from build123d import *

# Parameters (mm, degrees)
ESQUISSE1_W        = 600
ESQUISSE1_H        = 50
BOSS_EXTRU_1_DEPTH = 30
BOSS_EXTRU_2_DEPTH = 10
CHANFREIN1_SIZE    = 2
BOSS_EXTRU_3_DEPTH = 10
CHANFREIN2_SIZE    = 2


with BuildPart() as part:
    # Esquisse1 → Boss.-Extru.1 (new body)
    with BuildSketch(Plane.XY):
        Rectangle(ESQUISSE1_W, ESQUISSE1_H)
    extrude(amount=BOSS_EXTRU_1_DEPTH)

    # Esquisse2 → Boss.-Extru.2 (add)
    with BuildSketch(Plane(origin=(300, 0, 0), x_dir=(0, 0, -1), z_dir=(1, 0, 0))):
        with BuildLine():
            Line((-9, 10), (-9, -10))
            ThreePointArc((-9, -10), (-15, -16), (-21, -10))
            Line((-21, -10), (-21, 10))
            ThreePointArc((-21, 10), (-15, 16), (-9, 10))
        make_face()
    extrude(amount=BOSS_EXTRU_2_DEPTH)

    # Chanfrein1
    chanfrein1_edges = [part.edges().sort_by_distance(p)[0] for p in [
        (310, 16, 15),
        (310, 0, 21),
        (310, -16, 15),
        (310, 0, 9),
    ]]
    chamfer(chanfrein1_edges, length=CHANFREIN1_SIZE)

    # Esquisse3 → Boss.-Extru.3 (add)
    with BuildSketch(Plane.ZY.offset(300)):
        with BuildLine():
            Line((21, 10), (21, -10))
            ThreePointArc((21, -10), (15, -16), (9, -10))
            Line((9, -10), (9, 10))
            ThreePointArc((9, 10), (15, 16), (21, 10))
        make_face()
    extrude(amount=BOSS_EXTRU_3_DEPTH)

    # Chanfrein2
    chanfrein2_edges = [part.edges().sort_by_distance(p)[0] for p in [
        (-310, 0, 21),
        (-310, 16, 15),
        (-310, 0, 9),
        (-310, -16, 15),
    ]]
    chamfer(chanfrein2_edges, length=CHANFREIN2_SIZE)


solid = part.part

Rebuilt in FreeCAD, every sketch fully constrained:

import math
import FreeCAD as App
import Part
import Sketcher

V = App.Vector


def edges_at(feature, points):
    """Names of the edges that pass closest to the given points."""
    edges = feature.Shape.Edges
    near = lambda p: min(range(len(edges)), key=lambda i: edges[i].distToShape(Part.Vertex(*p))[0])
    return sorted({f"Edge{near(p) + 1}" for p in points})

doc = App.newDocument("Part")
body = doc.addObject("PartDesign::Body", "Body")

sketch1 = doc.addObject("Sketcher::SketchObject", "Sketch")
body.addObject(sketch1)
sketch1.AttachmentSupport = (doc.XY_Plane, [""])
sketch1.MapMode = "FlatFace"
sketch1.addGeometry(Part.LineSegment(V(-300, 25, 0), V(-300, -25, 0)), False)
sketch1.addGeometry(Part.LineSegment(V(-300, -25, 0), V(300, -25, 0)), False)
sketch1.addGeometry(Part.LineSegment(V(300, -25, 0), V(300, 25, 0)), False)
sketch1.addGeometry(Part.LineSegment(V(300, 25, 0), V(-300, 25, 0)), False)
sketch1.addConstraint(Sketcher.Constraint("Coincident", 0, 2, 1, 1))
sketch1.addConstraint(Sketcher.Constraint("Coincident", 1, 2, 2, 1))
sketch1.addConstraint(Sketcher.Constraint("Coincident", 2, 2, 3, 1))
sketch1.addConstraint(Sketcher.Constraint("Coincident", 3, 2, 0, 1))
sketch1.addConstraint(Sketcher.Constraint("Vertical", 0))
sketch1.addConstraint(Sketcher.Constraint("Horizontal", 1))
sketch1.addConstraint(Sketcher.Constraint("Vertical", 2))
sketch1.addConstraint(Sketcher.Constraint("Horizontal", 3))
sketch1.addConstraint(Sketcher.Constraint("Symmetric", 0, 2, 2, 2, -1, 1))
sketch1.addConstraint(Sketcher.Constraint("DistanceX", 1, 1, 1, 2, 600.0))
sketch1.addConstraint(Sketcher.Constraint("DistanceY", 0, 2, 0, 1, 50.0))
pad1 = doc.addObject("PartDesign::Pad", "Pad")
body.addObject(pad1)
pad1.Profile = sketch1
pad1.Length = 30

sketch2 = doc.addObject("Sketcher::SketchObject", "Sketch001")
body.addObject(sketch2)
sketch2.AttachmentSupport = (doc.YZ_Plane, [""])
sketch2.MapMode = "FlatFace"
sketch2.AttachmentOffset = App.Placement(V(0, 0, 300), App.Rotation())
sketch2.addGeometry(Part.LineSegment(V(-10, 9, 0), V(10, 9, 0)), False)
sketch2.addGeometry(Part.ArcOfCircle(Part.Circle(V(10, 15, 0), V(0, 0, 1), 6), math.radians(-90), math.radians(90)), False)
sketch2.addGeometry(Part.LineSegment(V(10, 21, 0), V(-10, 21, 0)), False)
sketch2.addGeometry(Part.ArcOfCircle(Part.Circle(V(-10, 15, 0), V(0, 0, 1), 6), math.radians(90), math.radians(270)), False)
sketch2.addConstraint(Sketcher.Constraint("Tangent", 0, 2, 1, 1))
sketch2.addConstraint(Sketcher.Constraint("Tangent", 1, 2, 2, 1))
sketch2.addConstraint(Sketcher.Constraint("Tangent", 2, 2, 3, 1))
sketch2.addConstraint(Sketcher.Constraint("Tangent", 3, 2, 0, 1))
sketch2.addConstraint(Sketcher.Constraint("Horizontal", 0))
sketch2.addConstraint(Sketcher.Constraint("Horizontal", 2))
sketch2.addConstraint(Sketcher.Constraint("Radius", 1, 6.0))
sketch2.addConstraint(Sketcher.Constraint("DistanceX", 0, 1, 0, 2, 20.0))
sketch2.addConstraint(Sketcher.Constraint("DistanceX", -1, 1, 1, 3, 10.0))
sketch2.addConstraint(Sketcher.Constraint("DistanceY", -1, 1, 1, 3, 15.0))
pad2 = doc.addObject("PartDesign::Pad", "Pad001")
body.addObject(pad2)
pad2.Profile = sketch2
pad2.Length = 10
doc.recompute()

chamfer = doc.addObject("PartDesign::Chamfer", "Chamfer")
body.addObject(chamfer)
chamfer.Base = (pad2, edges_at(pad2, [
    (310, 16, 15),
    (310, 0, 21),
    (310, -16, 15),
    (310, 0, 9),
]))
chamfer.Size = 2

sketch3 = doc.addObject("Sketcher::SketchObject", "Sketch002")
body.addObject(sketch3)
sketch3.AttachmentSupport = (doc.YZ_Plane, [""])
sketch3.MapMode = "FlatFace"
sketch3.AttachmentOffset = App.Placement(V(0, 0, -300), App.Rotation())
sketch3.addGeometry(Part.LineSegment(V(-10, 21, 0), V(10, 21, 0)), False)
sketch3.addGeometry(Part.ArcOfCircle(Part.Circle(V(10, 15, 0), V(0, 0, 1), 6), math.radians(-90), math.radians(90)), False)
sketch3.addGeometry(Part.LineSegment(V(10, 9, 0), V(-10, 9, 0)), False)
sketch3.addGeometry(Part.ArcOfCircle(Part.Circle(V(-10, 15, 0), V(0, 0, 1), 6), math.radians(90), math.radians(270)), False)
sketch3.addConstraint(Sketcher.Constraint("Tangent", 0, 2, 1, 2))
sketch3.addConstraint(Sketcher.Constraint("Tangent", 1, 1, 2, 1))
sketch3.addConstraint(Sketcher.Constraint("Tangent", 2, 2, 3, 2))
sketch3.addConstraint(Sketcher.Constraint("Tangent", 3, 1, 0, 1))
sketch3.addConstraint(Sketcher.Constraint("Horizontal", 0))
sketch3.addConstraint(Sketcher.Constraint("Horizontal", 2))
sketch3.addConstraint(Sketcher.Constraint("Radius", 1, 6.0))
sketch3.addConstraint(Sketcher.Constraint("DistanceX", 0, 1, 0, 2, 20.0))
sketch3.addConstraint(Sketcher.Constraint("DistanceX", -1, 1, 1, 3, 10.0))
sketch3.addConstraint(Sketcher.Constraint("DistanceY", -1, 1, 1, 3, 15.0))
pad3 = doc.addObject("PartDesign::Pad", "Pad002")
body.addObject(pad3)
pad3.Profile = sketch3
pad3.Length = 10
pad3.Reversed = True
doc.recompute()

chamfer2 = doc.addObject("PartDesign::Chamfer", "Chamfer001")
body.addObject(chamfer2)
chamfer2.Base = (pad3, edges_at(pad3, [
    (-310, 0, 21),
    (-310, 16, 15),
    (-310, 0, 9),
    (-310, -16, 15),
]))
chamfer2.Size = 2

doc.recompute()
